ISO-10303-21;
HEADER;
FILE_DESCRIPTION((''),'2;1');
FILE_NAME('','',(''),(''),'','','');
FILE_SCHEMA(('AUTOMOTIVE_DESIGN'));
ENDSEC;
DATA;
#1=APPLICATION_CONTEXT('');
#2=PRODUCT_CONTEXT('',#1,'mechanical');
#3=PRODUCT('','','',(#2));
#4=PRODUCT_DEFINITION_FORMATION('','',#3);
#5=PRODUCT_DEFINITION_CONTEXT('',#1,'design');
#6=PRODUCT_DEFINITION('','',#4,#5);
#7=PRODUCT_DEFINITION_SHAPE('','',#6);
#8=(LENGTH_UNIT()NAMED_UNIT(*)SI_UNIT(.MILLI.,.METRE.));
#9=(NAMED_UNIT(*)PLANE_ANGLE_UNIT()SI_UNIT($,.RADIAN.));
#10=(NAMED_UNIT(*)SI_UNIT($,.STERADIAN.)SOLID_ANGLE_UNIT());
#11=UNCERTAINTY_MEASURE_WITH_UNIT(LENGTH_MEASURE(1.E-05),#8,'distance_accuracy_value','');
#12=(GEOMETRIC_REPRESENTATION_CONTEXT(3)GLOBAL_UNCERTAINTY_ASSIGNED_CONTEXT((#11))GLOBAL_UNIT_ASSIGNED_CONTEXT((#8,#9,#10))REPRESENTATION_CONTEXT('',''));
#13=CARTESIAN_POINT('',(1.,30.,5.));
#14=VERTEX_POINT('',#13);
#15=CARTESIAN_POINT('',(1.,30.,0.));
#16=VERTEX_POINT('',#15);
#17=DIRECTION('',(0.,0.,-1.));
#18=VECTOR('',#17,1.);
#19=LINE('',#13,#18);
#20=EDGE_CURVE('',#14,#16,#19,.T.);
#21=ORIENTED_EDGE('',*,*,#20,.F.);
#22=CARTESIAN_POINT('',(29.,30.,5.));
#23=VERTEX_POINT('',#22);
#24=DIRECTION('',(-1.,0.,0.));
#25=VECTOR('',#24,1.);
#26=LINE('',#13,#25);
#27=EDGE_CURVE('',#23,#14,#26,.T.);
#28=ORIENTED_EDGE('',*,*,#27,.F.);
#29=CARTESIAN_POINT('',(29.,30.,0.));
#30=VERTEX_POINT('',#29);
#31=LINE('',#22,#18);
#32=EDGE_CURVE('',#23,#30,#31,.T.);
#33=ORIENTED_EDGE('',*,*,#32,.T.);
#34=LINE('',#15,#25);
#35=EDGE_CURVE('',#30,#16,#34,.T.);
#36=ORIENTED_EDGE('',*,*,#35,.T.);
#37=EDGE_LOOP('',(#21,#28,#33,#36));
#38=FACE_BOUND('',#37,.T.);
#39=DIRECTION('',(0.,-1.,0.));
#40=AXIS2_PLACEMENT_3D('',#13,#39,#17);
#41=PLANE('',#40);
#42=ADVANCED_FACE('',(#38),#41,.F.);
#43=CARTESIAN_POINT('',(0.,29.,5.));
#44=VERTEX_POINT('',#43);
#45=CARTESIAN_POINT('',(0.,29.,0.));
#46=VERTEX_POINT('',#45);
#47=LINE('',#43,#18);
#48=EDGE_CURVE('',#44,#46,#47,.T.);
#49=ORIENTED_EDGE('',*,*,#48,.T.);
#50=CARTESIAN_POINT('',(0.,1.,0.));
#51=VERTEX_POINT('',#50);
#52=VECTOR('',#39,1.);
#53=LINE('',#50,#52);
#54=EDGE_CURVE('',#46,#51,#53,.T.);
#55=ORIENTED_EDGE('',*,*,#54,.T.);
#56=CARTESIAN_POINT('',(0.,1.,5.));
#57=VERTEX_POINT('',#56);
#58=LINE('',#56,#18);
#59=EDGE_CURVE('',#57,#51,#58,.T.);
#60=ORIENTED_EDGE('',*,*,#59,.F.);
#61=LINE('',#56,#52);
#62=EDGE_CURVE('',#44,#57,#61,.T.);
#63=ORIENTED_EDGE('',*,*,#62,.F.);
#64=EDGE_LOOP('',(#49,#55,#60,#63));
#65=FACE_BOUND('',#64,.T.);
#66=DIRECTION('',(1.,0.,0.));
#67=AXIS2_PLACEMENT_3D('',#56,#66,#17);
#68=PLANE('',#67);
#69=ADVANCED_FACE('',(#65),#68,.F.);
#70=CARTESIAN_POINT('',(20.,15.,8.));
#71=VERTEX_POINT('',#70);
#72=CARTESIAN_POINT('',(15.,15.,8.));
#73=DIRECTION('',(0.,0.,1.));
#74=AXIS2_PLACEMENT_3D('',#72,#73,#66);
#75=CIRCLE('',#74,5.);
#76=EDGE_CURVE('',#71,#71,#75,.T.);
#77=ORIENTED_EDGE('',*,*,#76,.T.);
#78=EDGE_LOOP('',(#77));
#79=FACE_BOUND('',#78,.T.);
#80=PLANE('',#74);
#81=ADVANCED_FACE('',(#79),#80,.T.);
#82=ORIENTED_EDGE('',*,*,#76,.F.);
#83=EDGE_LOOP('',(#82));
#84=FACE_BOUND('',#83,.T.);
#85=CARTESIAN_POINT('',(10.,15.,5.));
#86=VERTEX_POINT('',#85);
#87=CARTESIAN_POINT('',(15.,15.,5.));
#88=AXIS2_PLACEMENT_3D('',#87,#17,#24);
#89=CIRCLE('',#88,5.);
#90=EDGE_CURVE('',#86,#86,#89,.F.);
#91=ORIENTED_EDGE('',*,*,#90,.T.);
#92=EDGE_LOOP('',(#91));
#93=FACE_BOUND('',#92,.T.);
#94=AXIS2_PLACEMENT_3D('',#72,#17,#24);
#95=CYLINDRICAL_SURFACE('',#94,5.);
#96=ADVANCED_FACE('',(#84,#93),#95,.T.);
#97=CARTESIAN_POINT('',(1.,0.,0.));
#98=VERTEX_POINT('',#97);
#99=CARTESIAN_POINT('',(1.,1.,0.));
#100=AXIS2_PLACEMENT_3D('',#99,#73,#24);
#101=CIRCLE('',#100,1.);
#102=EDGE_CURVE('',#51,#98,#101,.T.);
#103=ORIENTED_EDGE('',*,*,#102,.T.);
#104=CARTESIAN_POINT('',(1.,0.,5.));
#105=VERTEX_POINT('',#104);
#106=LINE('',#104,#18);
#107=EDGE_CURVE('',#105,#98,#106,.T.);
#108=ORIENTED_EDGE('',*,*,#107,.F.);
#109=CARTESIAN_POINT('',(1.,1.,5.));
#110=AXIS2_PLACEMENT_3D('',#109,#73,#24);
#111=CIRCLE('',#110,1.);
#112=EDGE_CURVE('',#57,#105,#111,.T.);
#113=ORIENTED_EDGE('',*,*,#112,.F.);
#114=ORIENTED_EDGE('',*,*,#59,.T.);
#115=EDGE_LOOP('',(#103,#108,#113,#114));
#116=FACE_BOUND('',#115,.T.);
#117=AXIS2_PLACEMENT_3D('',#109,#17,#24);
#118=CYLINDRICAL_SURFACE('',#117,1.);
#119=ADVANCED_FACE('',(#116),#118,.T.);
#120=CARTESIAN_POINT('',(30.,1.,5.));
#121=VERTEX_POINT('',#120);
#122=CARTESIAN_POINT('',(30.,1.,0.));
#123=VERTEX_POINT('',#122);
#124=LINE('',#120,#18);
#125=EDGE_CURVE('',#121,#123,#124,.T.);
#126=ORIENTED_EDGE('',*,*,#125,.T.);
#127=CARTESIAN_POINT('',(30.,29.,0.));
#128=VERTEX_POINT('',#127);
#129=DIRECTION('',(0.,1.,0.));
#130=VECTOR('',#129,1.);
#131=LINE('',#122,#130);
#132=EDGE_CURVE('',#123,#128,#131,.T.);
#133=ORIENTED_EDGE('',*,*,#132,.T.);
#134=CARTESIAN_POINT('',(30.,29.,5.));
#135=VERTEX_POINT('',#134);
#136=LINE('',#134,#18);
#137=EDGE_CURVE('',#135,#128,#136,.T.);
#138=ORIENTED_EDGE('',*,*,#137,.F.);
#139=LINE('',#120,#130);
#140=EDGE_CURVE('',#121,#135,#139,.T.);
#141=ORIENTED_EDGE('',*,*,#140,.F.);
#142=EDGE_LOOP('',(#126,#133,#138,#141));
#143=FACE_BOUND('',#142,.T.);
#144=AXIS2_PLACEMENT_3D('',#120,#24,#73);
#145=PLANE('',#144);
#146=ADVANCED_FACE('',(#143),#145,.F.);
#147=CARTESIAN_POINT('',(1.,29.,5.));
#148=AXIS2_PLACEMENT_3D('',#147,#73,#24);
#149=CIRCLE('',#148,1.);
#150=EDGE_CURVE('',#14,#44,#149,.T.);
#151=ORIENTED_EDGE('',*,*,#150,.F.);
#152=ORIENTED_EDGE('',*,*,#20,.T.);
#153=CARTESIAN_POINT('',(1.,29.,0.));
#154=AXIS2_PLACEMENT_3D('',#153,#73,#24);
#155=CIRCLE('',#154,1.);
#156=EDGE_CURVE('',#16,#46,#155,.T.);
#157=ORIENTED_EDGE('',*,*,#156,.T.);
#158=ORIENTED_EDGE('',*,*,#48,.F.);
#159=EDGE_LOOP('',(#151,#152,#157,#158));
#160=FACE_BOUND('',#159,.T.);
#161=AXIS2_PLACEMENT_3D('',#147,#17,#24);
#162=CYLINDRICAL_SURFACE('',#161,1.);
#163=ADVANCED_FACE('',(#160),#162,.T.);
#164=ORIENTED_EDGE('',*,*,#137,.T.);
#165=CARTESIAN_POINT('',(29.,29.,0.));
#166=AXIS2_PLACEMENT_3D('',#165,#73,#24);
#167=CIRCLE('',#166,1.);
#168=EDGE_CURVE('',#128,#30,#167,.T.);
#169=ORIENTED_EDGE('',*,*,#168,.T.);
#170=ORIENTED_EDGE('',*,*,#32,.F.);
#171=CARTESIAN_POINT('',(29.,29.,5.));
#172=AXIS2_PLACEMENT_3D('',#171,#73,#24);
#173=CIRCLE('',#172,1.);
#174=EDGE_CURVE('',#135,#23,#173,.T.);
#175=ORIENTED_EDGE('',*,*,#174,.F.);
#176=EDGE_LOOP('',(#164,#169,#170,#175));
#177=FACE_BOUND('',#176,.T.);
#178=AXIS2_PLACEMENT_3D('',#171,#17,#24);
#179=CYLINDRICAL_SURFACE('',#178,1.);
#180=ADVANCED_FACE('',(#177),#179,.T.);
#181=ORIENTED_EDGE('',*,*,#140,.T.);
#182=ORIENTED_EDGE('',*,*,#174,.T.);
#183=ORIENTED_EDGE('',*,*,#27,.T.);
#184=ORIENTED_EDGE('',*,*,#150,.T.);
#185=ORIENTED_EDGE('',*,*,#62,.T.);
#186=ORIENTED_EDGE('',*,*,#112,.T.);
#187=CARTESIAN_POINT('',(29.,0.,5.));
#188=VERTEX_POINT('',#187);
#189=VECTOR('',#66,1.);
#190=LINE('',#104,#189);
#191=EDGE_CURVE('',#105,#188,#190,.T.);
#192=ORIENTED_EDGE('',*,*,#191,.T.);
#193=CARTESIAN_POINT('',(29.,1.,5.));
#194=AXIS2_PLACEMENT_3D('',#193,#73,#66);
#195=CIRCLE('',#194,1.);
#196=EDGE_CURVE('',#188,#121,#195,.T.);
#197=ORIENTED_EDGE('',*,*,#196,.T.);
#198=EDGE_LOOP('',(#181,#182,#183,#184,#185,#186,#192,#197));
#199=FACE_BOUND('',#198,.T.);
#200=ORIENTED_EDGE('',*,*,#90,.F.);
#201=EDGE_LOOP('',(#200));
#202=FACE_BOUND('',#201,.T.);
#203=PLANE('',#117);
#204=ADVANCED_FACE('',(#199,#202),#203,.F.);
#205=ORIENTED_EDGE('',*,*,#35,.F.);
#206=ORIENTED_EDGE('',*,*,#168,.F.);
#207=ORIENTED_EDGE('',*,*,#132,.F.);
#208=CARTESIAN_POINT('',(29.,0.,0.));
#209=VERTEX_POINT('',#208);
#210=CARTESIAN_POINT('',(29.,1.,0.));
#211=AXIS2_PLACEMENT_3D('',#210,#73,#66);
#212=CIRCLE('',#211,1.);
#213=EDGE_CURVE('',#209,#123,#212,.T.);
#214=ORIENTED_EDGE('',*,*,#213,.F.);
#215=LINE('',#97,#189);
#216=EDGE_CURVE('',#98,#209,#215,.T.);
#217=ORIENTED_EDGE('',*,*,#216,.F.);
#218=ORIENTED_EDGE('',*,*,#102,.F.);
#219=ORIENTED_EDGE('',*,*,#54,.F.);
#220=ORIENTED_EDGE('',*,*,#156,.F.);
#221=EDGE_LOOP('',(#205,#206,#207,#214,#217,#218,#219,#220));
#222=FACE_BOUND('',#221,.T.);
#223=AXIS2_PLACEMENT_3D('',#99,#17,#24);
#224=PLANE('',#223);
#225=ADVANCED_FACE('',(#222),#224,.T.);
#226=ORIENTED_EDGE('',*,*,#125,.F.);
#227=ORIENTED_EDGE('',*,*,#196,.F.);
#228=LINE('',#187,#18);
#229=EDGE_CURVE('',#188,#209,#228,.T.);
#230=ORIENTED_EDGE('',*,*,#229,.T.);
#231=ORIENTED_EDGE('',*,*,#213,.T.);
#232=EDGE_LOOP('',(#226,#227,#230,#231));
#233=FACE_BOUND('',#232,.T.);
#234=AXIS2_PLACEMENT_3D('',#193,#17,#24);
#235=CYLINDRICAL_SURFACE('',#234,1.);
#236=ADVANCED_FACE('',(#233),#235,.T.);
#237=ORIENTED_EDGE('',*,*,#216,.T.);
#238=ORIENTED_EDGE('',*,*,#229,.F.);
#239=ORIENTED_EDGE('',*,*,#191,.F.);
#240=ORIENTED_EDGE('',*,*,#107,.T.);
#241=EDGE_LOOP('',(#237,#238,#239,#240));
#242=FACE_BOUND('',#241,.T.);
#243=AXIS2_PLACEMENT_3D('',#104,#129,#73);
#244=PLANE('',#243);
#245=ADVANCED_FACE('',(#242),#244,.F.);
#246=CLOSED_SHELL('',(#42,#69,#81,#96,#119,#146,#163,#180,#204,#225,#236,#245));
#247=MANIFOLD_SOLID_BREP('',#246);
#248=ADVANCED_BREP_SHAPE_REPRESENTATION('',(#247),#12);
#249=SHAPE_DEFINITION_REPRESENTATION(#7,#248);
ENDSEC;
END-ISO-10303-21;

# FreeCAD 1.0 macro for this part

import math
import FreeCAD as App
import Part
import Sketcher
Q = App.Units.Quantity

doc = App.newDocument("Part")
body = doc.addObject("PartDesign::Body", "Body")

sketch1 = body.newObject("Sketcher::SketchObject", "Sketch")
sketch1.AttachmentSupport = (doc.getObject("XY_Plane"), [""])
sketch1.MapMode = "FlatFace"
sketch1.addGeometry([
    Part.LineSegment(App.Vector(1, 0, 0), App.Vector(29, 0, 0)),
    Part.ArcOfCircle(Part.Circle(App.Vector(29, 1, 0), App.Vector(0, 0, 1), 1), math.radians(-90), math.radians(0)),
    Part.LineSegment(App.Vector(30, 1, 0), App.Vector(30, 29, 0)),
    Part.ArcOfCircle(Part.Circle(App.Vector(29, 29, 0), App.Vector(0, 0, 1), 1), math.radians(0), math.radians(90)),
    Part.LineSegment(App.Vector(29, 30, 0), App.Vector(1, 30, 0)),
    Part.ArcOfCircle(Part.Circle(App.Vector(1, 29, 0), App.Vector(0, 0, 1), 1), math.radians(90), math.radians(180)),
    Part.LineSegment(App.Vector(0, 29, 0), App.Vector(0, 1, 0)),
    Part.ArcOfCircle(Part.Circle(App.Vector(1, 1, 0), App.Vector(0, 0, 1), 1), math.radians(-180), math.radians(-90)),
], False)
sketch1.addConstraint([
    Sketcher.Constraint("Tangent", 0, 2, 1, 1),
    Sketcher.Constraint("Tangent", 1, 2, 2, 1),
    Sketcher.Constraint("Tangent", 2, 2, 3, 1),
    Sketcher.Constraint("Tangent", 3, 2, 4, 1),
    Sketcher.Constraint("Tangent", 4, 2, 5, 1),
    Sketcher.Constraint("Tangent", 5, 2, 6, 1),
    Sketcher.Constraint("Tangent", 6, 2, 7, 1),
    Sketcher.Constraint("Tangent", 7, 2, 0, 1),
    Sketcher.Constraint("Horizontal", 0),
    Sketcher.Constraint("Vertical", 2),
    Sketcher.Constraint("Horizontal", 4),
    Sketcher.Constraint("Vertical", 6),
    Sketcher.Constraint("Equal", 1, 3),
    Sketcher.Constraint("Equal", 3, 5),
    Sketcher.Constraint("Equal", 5, 7),
    Sketcher.Constraint("PointOnObject", 0, 2, -1),
    Sketcher.Constraint("PointOnObject", 5, 2, -2),
    Sketcher.Constraint("Equal", 4, 2),
    Sketcher.Constraint("Radius", 1, Q("1 mm")),
    Sketcher.Constraint("DistanceX", 0, 1, 0, 2, Q("28 mm")),
])
pad1 = body.newObject("PartDesign::Pad", "Pad")
pad1.Profile = sketch1
pad1.Length = 5

sketch2 = body.newObject("Sketcher::SketchObject", "Sketch001")
sketch2.AttachmentSupport = (doc.getObject("XY_Plane"), [""])
sketch2.MapMode = "FlatFace"
sketch2.AttachmentOffset = App.Placement(App.Vector(0, 0, 5), App.Rotation())
sketch2.addGeometry(Part.Circle(App.Vector(15, 15, 0), App.Vector(0, 0, 1), 5), False)
sketch2.addConstraint([
    Sketcher.Constraint("Diameter", 0, Q("10 mm")),
    Sketcher.Constraint("DistanceX", -1, 1, 0, 3, Q("15 mm")),
    Sketcher.Constraint("DistanceY", -1, 1, 0, 3, Q("15 mm")),
])
pad2 = body.newObject("PartDesign::Pad", "Pad001")
pad2.Profile = sketch2
pad2.Length = 3

doc.recompute()
